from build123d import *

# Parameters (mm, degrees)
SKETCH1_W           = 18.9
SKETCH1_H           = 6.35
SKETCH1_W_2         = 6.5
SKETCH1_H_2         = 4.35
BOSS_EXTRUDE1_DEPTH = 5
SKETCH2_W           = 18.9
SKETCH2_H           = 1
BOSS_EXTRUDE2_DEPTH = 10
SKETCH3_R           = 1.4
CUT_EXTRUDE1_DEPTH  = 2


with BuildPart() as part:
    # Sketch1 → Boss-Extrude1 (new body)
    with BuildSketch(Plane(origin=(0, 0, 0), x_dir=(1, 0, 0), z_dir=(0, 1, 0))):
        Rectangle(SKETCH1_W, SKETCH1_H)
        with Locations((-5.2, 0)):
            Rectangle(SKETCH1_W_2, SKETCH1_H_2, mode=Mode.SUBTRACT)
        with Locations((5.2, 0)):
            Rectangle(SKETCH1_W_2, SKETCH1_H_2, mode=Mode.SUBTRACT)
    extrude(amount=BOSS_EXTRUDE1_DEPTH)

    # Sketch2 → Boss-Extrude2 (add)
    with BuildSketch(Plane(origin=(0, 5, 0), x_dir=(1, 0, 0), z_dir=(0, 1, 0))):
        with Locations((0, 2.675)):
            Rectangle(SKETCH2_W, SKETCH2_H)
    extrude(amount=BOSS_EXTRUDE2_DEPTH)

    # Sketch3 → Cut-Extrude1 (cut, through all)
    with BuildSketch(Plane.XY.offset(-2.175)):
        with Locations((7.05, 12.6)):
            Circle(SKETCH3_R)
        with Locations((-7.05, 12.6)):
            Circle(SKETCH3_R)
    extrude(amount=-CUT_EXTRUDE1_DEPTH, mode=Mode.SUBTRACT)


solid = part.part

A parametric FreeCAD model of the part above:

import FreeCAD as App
import Part
import Sketcher


def add_polygon(sketch, points):
    """Adds a closed chain of lines whose ends are joined by coincident constraints."""
    first, n = sketch.GeometryCount, len(points)
    for a, b in zip(points, points[1:] + points[:1]):
        sketch.addGeometry(Part.LineSegment(App.Vector(*a, 0), App.Vector(*b, 0)), False)
    for i in range(n):
        sketch.addConstraint(Sketcher.Constraint("Coincident", first + i, 2, first + (i + 1) % n, 1))

doc = App.newDocument("Part")
body = doc.addObject("PartDesign::Body", "Body")

sketch1 = body.newObject("Sketcher::SketchObject", "Sketch")
sketch1.AttachmentSupport = (doc.getObject("XZ_Plane"), [""])
sketch1.MapMode = "FlatFace"
add_polygon(sketch1, [(-9.4, -3.2), (-9.4, 3.2), (9.4, 3.2), (9.4, -3.2)])
add_polygon(sketch1, [(-1.9, 2.2), (-8.4, 2.2), (-8.4, -2.2), (-1.9, -2.2)])
add_polygon(sketch1, [(8.4, 2.2), (1.9, 2.2), (1.9, -2.2), (8.4, -2.2)])
sketch1.addConstraint([
    Sketcher.Constraint("Vertical", 0),
    Sketcher.Constraint("Horizontal", 1),
    Sketcher.Constraint("Vertical", 2),
    Sketcher.Constraint("Horizontal", 3),
    Sketcher.Constraint("Horizontal", 4),
    Sketcher.Constraint("Vertical", 5),
    Sketcher.Constraint("Horizontal", 6),
    Sketcher.Constraint("Vertical", 7),
    Sketcher.Constraint("Horizontal", 8),
    Sketcher.Constraint("Vertical", 9),
    Sketcher.Constraint("Horizontal", 10),
    Sketcher.Constraint("Vertical", 11),
    Sketcher.Constraint("Symmetric", 0, 2, 2, 2, -1, 1),
    Sketcher.Constraint("Symmetric", 6, 2, 8, 2, -1, 1),
    Sketcher.Constraint("Symmetric", 4, 2, 10, 2, -1, 1),
    Sketcher.Constraint("Horizontal", 7, 2, 8, 2),
    Sketcher.Constraint("DistanceX", 1, 1, 1, 2, 18.9),
    Sketcher.Constraint("DistanceX", 4, 2, 4, 1, 6.5),
    Sketcher.Constraint("DistanceX", 0, 2, 4, 2, 1.0),
    Sketcher.Constraint("DistanceY", 4, 2, 0, 2, 1.0),
    Sketcher.Constraint("DistanceY", 0, 1, 0, 2, 6.35),
])
pad1 = body.newObject("PartDesign::Pad", "Pad")
pad1.Profile = sketch1
pad1.Length = 5
pad1.Reversed = True

sketch2 = body.newObject("Sketcher::SketchObject", "Sketch001")
sketch2.AttachmentSupport = (doc.getObject("XZ_Plane"), [""])
sketch2.MapMode = "FlatFace"
sketch2.AttachmentOffset = App.Placement(App.Vector(0, 0, -5), App.Rotation())
add_polygon(sketch2, [(-9.4, -3.2), (-9.4, -2.2), (9.4, -2.2), (9.4, -3.2)])
sketch2.addConstraint([
    Sketcher.Constraint("Vertical", 0),
    Sketcher.Constraint("Horizontal", 1),
    Sketcher.Constraint("Vertical", 2),
    Sketcher.Constraint("Horizontal", 3),
    Sketcher.Constraint("DistanceY", 0, 1, 0, 2, 1.0),
    Sketcher.Constraint("DistanceX", 1, 1, 1, 2, 18.9),
    Sketcher.Constraint("DistanceX", 0, 2, -1, 1, 9.45),
    Sketcher.Constraint("DistanceY", 0, 2, -1, 1, 2.175),
])
pad2 = body.newObject("PartDesign::Pad", "Pad001")
pad2.Profile = sketch2
pad2.Length = 10
pad2.Reversed = True

sketch3 = body.newObject("Sketcher::SketchObject", "Sketch002")
sketch3.AttachmentSupport = (doc.getObject("XY_Plane"), [""])
sketch3.MapMode = "FlatFace"
sketch3.AttachmentOffset = App.Placement(App.Vector(0, 0, -2.175), App.Rotation())
sketch3.addGeometry([
    Part.Circle(App.Vector(7, 12.6, 0), App.Vector(0, 0, 1), 1.4),
    Part.Circle(App.Vector(-7, 12.6, 0), App.Vector(0, 0, 1), 1.4),
], False)
sketch3.addConstraint([
    Sketcher.Constraint("Equal", 0, 1),
    Sketcher.Constraint("Symmetric", 0, 3, 1, 3, -2),
    Sketcher.Constraint("Diameter", 0, 2.8),
    Sketcher.Constraint("DistanceY", -1, 1, 0, 3, 12.6),
    Sketcher.Constraint("DistanceX", 1, 3, 0, 3, 14.1),
])
pocket1 = body.newObject("PartDesign::Pocket", "Pocket")
pocket1.Profile = sketch3
pocket1.Type = "ThroughAll"

doc.recompute()
